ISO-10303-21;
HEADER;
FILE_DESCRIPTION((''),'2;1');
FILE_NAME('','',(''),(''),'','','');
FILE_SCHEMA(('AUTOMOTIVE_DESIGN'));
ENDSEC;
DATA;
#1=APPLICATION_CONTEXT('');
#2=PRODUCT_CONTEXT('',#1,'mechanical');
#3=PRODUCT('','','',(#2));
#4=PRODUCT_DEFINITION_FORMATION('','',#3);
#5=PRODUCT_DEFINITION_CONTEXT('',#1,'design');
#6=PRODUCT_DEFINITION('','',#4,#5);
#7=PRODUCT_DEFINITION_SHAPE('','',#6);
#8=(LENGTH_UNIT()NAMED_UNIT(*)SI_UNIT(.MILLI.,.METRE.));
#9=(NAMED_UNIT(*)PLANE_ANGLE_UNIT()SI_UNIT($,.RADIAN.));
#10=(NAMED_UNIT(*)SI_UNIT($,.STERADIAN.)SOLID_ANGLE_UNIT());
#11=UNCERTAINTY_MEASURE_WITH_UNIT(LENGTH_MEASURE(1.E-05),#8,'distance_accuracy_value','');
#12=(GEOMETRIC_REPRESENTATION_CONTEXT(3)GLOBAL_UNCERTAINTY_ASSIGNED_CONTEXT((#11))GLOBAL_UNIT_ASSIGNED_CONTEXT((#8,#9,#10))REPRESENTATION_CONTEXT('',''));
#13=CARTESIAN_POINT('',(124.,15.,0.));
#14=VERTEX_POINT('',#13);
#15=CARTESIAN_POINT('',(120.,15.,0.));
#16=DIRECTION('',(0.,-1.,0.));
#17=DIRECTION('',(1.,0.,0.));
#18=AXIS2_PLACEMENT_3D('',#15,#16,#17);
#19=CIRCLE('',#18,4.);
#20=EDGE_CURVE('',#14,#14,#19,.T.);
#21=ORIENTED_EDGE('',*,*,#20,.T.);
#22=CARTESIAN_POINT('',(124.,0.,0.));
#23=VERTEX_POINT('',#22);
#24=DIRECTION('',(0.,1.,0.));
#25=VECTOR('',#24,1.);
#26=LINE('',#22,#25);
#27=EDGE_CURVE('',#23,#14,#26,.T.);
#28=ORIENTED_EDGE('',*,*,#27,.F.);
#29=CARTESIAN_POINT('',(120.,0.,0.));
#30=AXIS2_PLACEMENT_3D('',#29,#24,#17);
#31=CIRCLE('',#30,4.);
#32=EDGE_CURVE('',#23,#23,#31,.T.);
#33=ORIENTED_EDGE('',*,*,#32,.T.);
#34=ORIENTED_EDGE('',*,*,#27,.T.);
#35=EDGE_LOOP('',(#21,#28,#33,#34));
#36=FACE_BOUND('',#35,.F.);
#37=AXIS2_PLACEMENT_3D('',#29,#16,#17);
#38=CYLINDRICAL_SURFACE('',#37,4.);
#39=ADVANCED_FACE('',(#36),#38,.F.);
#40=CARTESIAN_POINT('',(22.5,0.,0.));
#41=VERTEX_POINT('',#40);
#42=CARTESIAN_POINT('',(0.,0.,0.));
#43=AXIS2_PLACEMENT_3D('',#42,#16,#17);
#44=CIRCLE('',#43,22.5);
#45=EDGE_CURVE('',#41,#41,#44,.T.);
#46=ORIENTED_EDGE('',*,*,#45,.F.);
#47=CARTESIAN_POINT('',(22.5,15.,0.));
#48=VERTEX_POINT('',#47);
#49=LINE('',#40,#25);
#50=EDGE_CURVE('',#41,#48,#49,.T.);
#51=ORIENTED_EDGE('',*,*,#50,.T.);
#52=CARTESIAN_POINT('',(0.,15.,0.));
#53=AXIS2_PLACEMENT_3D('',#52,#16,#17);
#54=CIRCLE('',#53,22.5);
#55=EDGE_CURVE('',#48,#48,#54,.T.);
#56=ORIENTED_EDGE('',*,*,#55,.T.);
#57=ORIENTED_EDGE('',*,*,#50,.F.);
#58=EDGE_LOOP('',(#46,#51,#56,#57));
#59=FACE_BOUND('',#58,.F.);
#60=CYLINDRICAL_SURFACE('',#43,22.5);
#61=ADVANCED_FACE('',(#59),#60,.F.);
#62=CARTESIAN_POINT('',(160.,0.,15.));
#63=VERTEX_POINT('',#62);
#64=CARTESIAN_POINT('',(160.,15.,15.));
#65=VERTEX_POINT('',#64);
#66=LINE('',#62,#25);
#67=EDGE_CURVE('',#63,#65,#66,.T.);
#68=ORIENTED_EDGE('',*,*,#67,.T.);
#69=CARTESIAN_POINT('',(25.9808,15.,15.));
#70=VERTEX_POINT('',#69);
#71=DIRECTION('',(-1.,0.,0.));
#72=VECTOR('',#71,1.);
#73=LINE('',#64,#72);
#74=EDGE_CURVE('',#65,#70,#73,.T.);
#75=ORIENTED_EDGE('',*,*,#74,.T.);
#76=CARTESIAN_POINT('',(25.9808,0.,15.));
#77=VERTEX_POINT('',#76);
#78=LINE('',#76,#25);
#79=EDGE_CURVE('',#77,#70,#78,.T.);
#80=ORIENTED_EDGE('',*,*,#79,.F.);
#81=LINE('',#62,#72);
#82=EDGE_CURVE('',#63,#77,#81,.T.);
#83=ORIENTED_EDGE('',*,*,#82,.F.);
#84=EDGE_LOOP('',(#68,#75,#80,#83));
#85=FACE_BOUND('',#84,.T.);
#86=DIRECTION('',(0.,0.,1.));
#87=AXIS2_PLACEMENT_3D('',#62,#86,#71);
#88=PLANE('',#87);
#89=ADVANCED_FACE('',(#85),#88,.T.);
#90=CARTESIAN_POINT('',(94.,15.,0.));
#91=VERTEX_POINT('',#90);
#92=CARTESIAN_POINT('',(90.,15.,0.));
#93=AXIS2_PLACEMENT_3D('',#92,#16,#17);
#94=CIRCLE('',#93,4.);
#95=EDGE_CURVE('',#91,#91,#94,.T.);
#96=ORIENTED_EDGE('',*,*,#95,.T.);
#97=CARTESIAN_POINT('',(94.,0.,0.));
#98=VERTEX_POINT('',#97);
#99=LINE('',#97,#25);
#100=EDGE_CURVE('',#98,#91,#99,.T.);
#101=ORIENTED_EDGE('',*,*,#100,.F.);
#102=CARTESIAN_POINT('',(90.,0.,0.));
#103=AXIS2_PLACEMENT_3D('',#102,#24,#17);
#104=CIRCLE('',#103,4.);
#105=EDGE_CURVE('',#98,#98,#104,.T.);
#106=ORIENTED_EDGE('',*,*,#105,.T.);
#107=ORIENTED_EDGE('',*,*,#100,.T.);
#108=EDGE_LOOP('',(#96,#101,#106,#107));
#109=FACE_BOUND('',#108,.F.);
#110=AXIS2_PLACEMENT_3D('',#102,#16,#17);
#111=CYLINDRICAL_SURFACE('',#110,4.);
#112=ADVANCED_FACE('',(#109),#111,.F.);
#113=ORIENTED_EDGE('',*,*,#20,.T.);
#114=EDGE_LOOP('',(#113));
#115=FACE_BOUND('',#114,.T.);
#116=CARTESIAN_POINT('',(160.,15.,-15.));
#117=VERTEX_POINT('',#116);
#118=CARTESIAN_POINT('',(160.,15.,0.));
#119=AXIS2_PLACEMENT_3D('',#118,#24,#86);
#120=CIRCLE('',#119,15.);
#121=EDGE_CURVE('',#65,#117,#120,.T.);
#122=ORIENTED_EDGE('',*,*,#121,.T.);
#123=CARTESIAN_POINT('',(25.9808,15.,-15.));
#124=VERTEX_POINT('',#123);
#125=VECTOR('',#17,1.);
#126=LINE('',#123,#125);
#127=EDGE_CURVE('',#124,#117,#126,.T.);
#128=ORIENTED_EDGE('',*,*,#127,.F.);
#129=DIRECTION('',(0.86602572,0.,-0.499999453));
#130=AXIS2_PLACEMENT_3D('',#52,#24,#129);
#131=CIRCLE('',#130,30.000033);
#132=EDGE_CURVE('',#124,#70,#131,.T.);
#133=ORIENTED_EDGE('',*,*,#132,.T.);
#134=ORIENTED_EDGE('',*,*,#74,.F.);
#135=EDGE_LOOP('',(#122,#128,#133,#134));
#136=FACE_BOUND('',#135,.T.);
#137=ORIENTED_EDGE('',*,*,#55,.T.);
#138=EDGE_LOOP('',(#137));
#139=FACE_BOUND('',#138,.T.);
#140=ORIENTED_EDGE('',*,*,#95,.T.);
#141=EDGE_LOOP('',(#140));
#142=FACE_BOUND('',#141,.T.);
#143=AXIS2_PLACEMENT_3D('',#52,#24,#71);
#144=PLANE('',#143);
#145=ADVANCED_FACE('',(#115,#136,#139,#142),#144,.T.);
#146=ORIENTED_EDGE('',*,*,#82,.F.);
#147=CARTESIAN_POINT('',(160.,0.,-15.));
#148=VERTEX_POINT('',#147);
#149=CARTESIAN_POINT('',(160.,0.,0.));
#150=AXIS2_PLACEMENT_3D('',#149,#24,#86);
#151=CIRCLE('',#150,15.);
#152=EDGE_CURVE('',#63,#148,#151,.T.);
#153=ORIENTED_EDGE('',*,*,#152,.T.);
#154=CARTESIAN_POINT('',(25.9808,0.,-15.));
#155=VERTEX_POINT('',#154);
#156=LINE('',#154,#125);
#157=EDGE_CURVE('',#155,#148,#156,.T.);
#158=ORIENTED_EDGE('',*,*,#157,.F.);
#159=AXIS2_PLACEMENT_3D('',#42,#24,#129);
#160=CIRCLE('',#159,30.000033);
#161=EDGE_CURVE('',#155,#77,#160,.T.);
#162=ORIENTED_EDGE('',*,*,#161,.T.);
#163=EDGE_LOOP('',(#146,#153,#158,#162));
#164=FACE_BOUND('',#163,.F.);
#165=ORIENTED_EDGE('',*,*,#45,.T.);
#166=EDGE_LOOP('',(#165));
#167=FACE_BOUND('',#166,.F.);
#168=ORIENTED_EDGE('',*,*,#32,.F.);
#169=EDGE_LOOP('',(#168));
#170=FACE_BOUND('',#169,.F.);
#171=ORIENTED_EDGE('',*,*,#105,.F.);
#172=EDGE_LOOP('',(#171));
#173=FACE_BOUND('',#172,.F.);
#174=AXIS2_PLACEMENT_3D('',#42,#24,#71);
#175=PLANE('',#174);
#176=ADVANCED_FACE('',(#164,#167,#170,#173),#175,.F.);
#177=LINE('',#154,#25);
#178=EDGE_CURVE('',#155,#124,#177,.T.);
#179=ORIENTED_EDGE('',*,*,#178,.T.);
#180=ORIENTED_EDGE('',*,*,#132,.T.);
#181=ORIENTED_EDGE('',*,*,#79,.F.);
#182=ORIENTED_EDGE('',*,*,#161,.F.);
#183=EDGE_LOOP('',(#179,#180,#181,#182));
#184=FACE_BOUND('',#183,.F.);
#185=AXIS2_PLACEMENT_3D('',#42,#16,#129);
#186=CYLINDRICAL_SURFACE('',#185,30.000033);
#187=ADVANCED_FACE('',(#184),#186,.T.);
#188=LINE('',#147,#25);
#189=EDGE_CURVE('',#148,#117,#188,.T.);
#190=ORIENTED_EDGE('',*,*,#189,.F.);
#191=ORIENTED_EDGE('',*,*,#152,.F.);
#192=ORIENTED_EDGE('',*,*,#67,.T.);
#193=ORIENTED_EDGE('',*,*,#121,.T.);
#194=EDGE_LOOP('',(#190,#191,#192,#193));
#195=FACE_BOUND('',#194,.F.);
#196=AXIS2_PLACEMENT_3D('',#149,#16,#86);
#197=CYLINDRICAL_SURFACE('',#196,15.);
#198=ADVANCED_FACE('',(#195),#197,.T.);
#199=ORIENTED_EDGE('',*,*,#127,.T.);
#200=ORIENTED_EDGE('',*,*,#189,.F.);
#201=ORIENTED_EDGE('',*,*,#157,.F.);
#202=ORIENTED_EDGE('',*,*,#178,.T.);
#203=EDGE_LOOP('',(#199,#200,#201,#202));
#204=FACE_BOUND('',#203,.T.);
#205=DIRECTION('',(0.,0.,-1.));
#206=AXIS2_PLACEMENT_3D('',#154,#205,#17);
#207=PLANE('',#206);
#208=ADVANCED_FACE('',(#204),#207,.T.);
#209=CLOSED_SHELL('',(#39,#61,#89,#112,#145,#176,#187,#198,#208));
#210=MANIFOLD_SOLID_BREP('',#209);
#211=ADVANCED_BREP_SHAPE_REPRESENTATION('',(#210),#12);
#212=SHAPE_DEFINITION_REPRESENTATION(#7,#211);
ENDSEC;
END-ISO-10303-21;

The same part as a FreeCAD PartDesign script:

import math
import FreeCAD as App
import Part
import Sketcher
Q = App.Units.Quantity

doc = App.newDocument("Part")
body = doc.addObject("PartDesign::Body", "Body")

# Sketch on XZ plane
sketch1 = body.newObject("Sketcher::SketchObject", "Sketch")
sketch1.AttachmentSupport = (doc.getObject("XZ_Plane"), [""])
sketch1.MapMode = "FlatFace"
sketch1.addGeometry(Part.LineSegment(App.Vector(160, -15, 0), App.Vector(26, -15, 0)), False)
sketch1.addGeometry(Part.ArcOfCircle(Part.Circle(App.Vector(0, 0, 0), App.Vector(0, 0, 1), 30), math.radians(30), math.radians(330)), False)
sketch1.addGeometry(Part.LineSegment(App.Vector(26, 15, 0), App.Vector(160, 15, 0)), False)
sketch1.addGeometry(Part.ArcOfCircle(Part.Circle(App.Vector(160, 0, 0), App.Vector(0, 0, 1), 15), math.radians(-90), math.radians(90)), False)
sketch1.addConstraint(Sketcher.Constraint("Coincident", 0, 2, 1, 2))
sketch1.addConstraint(Sketcher.Constraint("Coincident", 1, 1, 2, 1))
sketch1.addConstraint(Sketcher.Constraint("Tangent", 2, 2, 3, 2))
sketch1.addConstraint(Sketcher.Constraint("Tangent", 3, 1, 0, 1))
sketch1.addConstraint(Sketcher.Constraint("Horizontal", 0))
sketch1.addConstraint(Sketcher.Constraint("Horizontal", 2))
sketch1.addConstraint(Sketcher.Constraint("Coincident", 1, 3, -1, 1))
sketch1.addConstraint(Sketcher.Constraint("PointOnObject", 3, 3, -1))
sketch1.addConstraint(Sketcher.Constraint("Radius", 1, Q("30 mm")))
sketch1.addConstraint(Sketcher.Constraint("Radius", 3, Q("15 mm")))
sketch1.addConstraint(Sketcher.Constraint("DistanceX", -1, 1, 3, 3, Q("160 mm")))
pad1 = body.newObject("PartDesign::Pad", "Pad")
pad1.Profile = sketch1
pad1.Length = 15
pad1.Reversed = True

# Sketch on XZ plane
sketch2 = body.newObject("Sketcher::SketchObject", "Sketch001")
sketch2.AttachmentSupport = (doc.getObject("XZ_Plane"), [""])
sketch2.MapMode = "FlatFace"
sketch2.addGeometry(Part.Circle(App.Vector(0, 0, 0), App.Vector(0, 0, 1), 22.5), False)
sketch2.addGeometry(Part.Circle(App.Vector(120, 0, 0), App.Vector(0, 0, 1), 4), False)
sketch2.addGeometry(Part.Circle(App.Vector(90, 0, 0), App.Vector(0, 0, 1), 4), False)
sketch2.addConstraint(Sketcher.Constraint("Coincident", 0, 3, -1, 1))
sketch2.addConstraint(Sketcher.Constraint("Equal", 1, 2))
sketch2.addConstraint(Sketcher.Constraint("PointOnObject", 1, 3, -1))
sketch2.addConstraint(Sketcher.Constraint("PointOnObject", 2, 3, -1))
sketch2.addConstraint(Sketcher.Constraint("Diameter", 0, Q("45 mm")))
sketch2.addConstraint(Sketcher.Constraint("Diameter", 1, Q("8 mm")))
sketch2.addConstraint(Sketcher.Constraint("DistanceX", -1, 1, 1, 3, Q("120 mm")))
sketch2.addConstraint(Sketcher.Constraint("DistanceX", -1, 1, 2, 3, Q("90 mm")))
pocket1 = body.newObject("PartDesign::Pocket", "Pocket")
pocket1.Profile = sketch2
pocket1.Length = 15

doc.recompute()
